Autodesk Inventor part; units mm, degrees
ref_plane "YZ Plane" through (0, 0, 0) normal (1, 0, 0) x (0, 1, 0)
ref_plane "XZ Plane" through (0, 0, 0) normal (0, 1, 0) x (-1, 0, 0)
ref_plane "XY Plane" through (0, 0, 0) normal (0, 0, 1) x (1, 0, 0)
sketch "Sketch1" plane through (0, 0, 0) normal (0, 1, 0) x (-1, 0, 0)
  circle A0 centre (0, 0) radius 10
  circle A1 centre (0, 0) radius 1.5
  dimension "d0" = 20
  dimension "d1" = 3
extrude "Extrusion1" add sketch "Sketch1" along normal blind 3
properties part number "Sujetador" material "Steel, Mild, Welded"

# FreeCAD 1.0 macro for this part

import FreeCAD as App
import Part
import Sketcher
from FreeCAD import Vector
Q = App.Units.Quantity

doc = App.newDocument("Part")
body = doc.addObject("PartDesign::Body", "Body")

sketch1 = body.newObject("Sketcher::SketchObject", "Sketch")
sketch1.AttachmentSupport = (doc.getObject("XZ_Plane"), [""])
sketch1.MapMode = "FlatFace"
sketch1.addGeometry([
    Part.Circle(Vector(0, 0, 0), Vector(0, 0, 1), 10),
    Part.Circle(Vector(0, 0, 0), Vector(0, 0, 1), 1.5),
], False)
sketch1.addConstraint([
    Sketcher.Constraint("Coincident", 0, 3, -1, 1),
    Sketcher.Constraint("Coincident", 1, 3, -1, 1),
    Sketcher.Constraint("Diameter", 0, Q("20 mm")),
    Sketcher.Constraint("Diameter", 1, Q("3 mm")),
])
pad1 = body.newObject("PartDesign::Pad", "Pad")
pad1.Profile = sketch1
pad1.Length = 3
pad1.Reversed = True

doc.recompute()
